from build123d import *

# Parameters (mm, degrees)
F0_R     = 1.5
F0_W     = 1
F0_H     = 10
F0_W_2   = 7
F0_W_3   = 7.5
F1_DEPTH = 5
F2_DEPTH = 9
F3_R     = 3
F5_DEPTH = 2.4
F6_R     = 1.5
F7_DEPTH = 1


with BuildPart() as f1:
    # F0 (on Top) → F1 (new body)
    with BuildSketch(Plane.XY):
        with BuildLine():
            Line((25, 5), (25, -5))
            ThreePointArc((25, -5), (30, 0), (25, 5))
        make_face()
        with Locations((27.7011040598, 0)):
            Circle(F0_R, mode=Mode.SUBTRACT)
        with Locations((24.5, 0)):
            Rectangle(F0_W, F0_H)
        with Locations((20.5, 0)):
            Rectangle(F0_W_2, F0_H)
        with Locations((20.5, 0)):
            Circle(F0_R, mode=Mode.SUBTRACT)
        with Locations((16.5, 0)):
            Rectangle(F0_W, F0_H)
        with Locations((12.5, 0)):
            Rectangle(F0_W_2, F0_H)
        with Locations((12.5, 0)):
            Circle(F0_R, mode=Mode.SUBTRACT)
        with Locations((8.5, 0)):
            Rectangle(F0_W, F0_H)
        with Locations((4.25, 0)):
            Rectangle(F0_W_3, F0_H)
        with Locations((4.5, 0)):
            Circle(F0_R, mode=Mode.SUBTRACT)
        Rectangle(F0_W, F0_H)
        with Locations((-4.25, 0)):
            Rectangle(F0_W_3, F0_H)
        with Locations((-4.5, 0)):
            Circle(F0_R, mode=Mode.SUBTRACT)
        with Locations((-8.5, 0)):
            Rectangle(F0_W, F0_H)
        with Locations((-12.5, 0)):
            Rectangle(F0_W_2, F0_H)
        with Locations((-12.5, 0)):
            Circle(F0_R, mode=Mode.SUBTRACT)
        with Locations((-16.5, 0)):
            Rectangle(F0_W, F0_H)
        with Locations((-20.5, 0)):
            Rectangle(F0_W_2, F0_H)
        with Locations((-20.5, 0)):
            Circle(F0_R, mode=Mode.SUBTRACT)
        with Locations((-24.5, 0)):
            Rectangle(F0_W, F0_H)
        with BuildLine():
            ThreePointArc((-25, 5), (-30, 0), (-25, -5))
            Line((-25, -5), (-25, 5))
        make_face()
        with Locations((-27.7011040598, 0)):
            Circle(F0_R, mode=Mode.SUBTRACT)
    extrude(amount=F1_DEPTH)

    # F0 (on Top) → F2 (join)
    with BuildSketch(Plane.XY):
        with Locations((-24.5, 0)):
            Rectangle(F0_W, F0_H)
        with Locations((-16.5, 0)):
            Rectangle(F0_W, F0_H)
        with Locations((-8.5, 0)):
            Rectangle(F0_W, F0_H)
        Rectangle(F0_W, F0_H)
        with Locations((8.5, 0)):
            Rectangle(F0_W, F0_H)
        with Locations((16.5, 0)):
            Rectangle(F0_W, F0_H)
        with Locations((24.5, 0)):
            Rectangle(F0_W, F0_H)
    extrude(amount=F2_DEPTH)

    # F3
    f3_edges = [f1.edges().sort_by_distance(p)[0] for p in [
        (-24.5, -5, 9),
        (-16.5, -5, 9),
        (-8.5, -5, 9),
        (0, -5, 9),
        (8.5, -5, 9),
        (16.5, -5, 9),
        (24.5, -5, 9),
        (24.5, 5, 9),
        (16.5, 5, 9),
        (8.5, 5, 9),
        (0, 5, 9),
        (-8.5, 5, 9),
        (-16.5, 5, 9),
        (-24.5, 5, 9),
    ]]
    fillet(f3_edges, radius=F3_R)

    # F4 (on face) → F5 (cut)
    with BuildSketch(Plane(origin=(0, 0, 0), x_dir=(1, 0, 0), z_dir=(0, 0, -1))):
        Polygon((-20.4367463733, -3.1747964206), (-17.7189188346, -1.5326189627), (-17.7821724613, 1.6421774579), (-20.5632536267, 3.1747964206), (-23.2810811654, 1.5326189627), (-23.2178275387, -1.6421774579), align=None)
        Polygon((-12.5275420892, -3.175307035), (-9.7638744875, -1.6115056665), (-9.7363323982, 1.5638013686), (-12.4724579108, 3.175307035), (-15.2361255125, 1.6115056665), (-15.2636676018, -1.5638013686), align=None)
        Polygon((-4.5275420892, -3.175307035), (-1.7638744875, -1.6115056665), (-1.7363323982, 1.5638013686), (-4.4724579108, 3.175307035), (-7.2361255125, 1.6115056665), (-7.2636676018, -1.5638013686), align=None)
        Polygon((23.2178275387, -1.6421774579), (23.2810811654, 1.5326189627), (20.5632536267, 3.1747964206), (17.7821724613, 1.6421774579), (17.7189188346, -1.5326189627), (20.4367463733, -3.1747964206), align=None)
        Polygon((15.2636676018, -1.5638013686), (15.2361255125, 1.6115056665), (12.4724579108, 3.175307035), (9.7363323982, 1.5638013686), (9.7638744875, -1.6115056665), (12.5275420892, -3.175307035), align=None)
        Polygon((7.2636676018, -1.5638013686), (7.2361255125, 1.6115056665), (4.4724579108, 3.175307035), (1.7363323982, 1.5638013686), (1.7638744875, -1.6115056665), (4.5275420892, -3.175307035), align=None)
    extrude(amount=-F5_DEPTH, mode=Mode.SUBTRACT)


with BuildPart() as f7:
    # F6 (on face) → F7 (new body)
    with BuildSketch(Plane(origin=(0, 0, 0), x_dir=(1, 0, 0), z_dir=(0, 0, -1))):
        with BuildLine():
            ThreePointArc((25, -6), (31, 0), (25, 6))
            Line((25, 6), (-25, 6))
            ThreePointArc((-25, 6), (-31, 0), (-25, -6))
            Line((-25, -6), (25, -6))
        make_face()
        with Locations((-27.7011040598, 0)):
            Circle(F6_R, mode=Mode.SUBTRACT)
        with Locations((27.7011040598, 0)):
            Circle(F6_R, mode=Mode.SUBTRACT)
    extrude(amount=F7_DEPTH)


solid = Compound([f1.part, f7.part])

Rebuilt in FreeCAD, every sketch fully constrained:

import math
import FreeCAD as App
import Part
import Sketcher

V = App.Vector
Q = App.Units.Quantity


def edges_at(feature, points):
    """Names of the edges that pass closest to the given points."""
    edges = feature.Shape.Edges
    near = lambda p: min(range(len(edges)), key=lambda i: edges[i].distToShape(Part.Vertex(*p))[0])
    return sorted({f"Edge{near(p) + 1}" for p in points})


def add_polygon(sketch, points):
    """Adds a closed chain of lines whose ends are joined by coincident constraints."""
    first, n = sketch.GeometryCount, len(points)
    for a, b in zip(points, points[1:] + points[:1]):
        sketch.addGeometry(Part.LineSegment(App.Vector(*a, 0), App.Vector(*b, 0)), False)
    for i in range(n):
        sketch.addConstraint(Sketcher.Constraint("Coincident", first + i, 2, first + (i + 1) % n, 1))

doc = App.newDocument("Part")
body = doc.addObject("PartDesign::Body", "Body")

# Sketch on XY plane
sketch1 = body.newObject("Sketcher::SketchObject", "Sketch")
sketch1.AttachmentSupport = (doc.getObject("XY_Plane"), [""])
sketch1.MapMode = "FlatFace"
sketch1.addGeometry(Part.ArcOfCircle(Part.Circle(V(25, 0, 0), V(0, 0, 1), 5), math.radians(-90), math.radians(90)), False)
sketch1.addGeometry(Part.LineSegment(V(25, 5, 0), V(-25, 5, 0)), False)
sketch1.addGeometry(Part.ArcOfCircle(Part.Circle(V(-25, 0, 0), V(0, 0, 1), 5), math.radians(90), math.radians(270)), False)
sketch1.addGeometry(Part.LineSegment(V(-25, -5, 0), V(25, -5, 0)), False)
sketch1.addGeometry(Part.Circle(V(-27.7, 0, 0), V(0, 0, 1), 1.5), False)
sketch1.addGeometry(Part.Circle(V(-20.5, 0, 0), V(0, 0, 1), 1.5), False)
sketch1.addGeometry(Part.Circle(V(-12.5, 0, 0), V(0, 0, 1), 1.5), False)
sketch1.addGeometry(Part.Circle(V(-4.5, 0, 0), V(0, 0, 1), 1.5), False)
sketch1.addGeometry(Part.Circle(V(4.5, 0, 0), V(0, 0, 1), 1.5), False)
sketch1.addGeometry(Part.Circle(V(12.5, 0, 0), V(0, 0, 1), 1.5), False)
sketch1.addGeometry(Part.Circle(V(20.5, 0, 0), V(0, 0, 1), 1.5), False)
sketch1.addGeometry(Part.Circle(V(27.7, 0, 0), V(0, 0, 1), 1.5), False)
sketch1.addConstraint(Sketcher.Constraint("Tangent", 0, 2, 1, 1))
sketch1.addConstraint(Sketcher.Constraint("Tangent", 1, 2, 2, 1))
sketch1.addConstraint(Sketcher.Constraint("Tangent", 2, 2, 3, 1))
sketch1.addConstraint(Sketcher.Constraint("Tangent", 3, 2, 0, 1))
sketch1.addConstraint(Sketcher.Constraint("Horizontal", 1))
sketch1.addConstraint(Sketcher.Constraint("Horizontal", 3))
sketch1.addConstraint(Sketcher.Constraint("Equal", 4, 5))
sketch1.addConstraint(Sketcher.Constraint("Equal", 5, 6))
sketch1.addConstraint(Sketcher.Constraint("Equal", 6, 7))
sketch1.addConstraint(Sketcher.Constraint("Equal", 7, 8))
sketch1.addConstraint(Sketcher.Constraint("Equal", 8, 9))
sketch1.addConstraint(Sketcher.Constraint("Equal", 9, 10))
sketch1.addConstraint(Sketcher.Constraint("Equal", 10, 11))
sketch1.addConstraint(Sketcher.Constraint("Symmetric", 0, 3, 2, 3, -1, 1))
sketch1.addConstraint(Sketcher.Constraint("Symmetric", 7, 3, 8, 3, -1, 1))
sketch1.addConstraint(Sketcher.Constraint("Symmetric", 6, 3, 9, 3, -1, 1))
sketch1.addConstraint(Sketcher.Constraint("Symmetric", 5, 3, 10, 3, -1, 1))
sketch1.addConstraint(Sketcher.Constraint("Symmetric", 4, 3, 11, 3, -1, 1))
sketch1.addConstraint(Sketcher.Constraint("PointOnObject", 4, 3, -1))
sketch1.addConstraint(Sketcher.Constraint("PointOnObject", 5, 3, -1))
sketch1.addConstraint(Sketcher.Constraint("PointOnObject", 6, 3, -1))
sketch1.addConstraint(Sketcher.Constraint("PointOnObject", 7, 3, -1))
sketch1.addConstraint(Sketcher.Constraint("Diameter", 4, Q("3 mm")))
sketch1.addConstraint(Sketcher.Constraint("Radius", 0, Q("5 mm")))
sketch1.addConstraint(Sketcher.Constraint("DistanceX", 1, 2, 1, 1, Q("50 mm")))
sketch1.addConstraint(Sketcher.Constraint("DistanceX", 5, 3, 6, 3, Q("8 mm")))
sketch1.addConstraint(Sketcher.Constraint("DistanceX", 6, 3, 7, 3, Q("8 mm")))
sketch1.addConstraint(Sketcher.Constraint("DistanceX", 7, 3, 8, 3, Q("9 mm")))
sketch1.addConstraint(Sketcher.Constraint("DistanceX", 4, 3, -1, 1, Q("27.701104 mm")))
pad1 = body.newObject("PartDesign::Pad", "Pad")
pad1.Profile = sketch1
pad1.Length = 5

# Sketch on XY plane
sketch2 = body.newObject("Sketcher::SketchObject", "Sketch001")
sketch2.AttachmentSupport = (doc.getObject("XY_Plane"), [""])
sketch2.MapMode = "FlatFace"
add_polygon(sketch2, [(-25, 5), (-25, -5), (-24, -5), (-24, 5)])  # lines 0-3
add_polygon(sketch2, [(-17, 5), (-17, -5), (-16, -5), (-16, 5)])  # lines 4-7
add_polygon(sketch2, [(-9, 5), (-9, -5), (-8, -5), (-8, 5)])  # lines 8-11
add_polygon(sketch2, [(-0.5, 5), (-0.5, -5), (0.5, -5), (0.5, 5)])  # lines 12-15
add_polygon(sketch2, [(8, 5), (8, -5), (9, -5), (9, 5)])  # lines 16-19
add_polygon(sketch2, [(16, 5), (16, -5), (17, -5), (17, 5)])  # lines 20-23
add_polygon(sketch2, [(24, 5), (24, -5), (25, -5), (25, 5)])  # lines 24-27
sketch2.addConstraint(Sketcher.Constraint("Vertical", 0))
sketch2.addConstraint(Sketcher.Constraint("Horizontal", 1))
sketch2.addConstraint(Sketcher.Constraint("Vertical", 2))
sketch2.addConstraint(Sketcher.Constraint("Horizontal", 3))
sketch2.addConstraint(Sketcher.Constraint("Vertical", 4))
sketch2.addConstraint(Sketcher.Constraint("Horizontal", 5))
sketch2.addConstraint(Sketcher.Constraint("Vertical", 6))
sketch2.addConstraint(Sketcher.Constraint("Horizontal", 7))
sketch2.addConstraint(Sketcher.Constraint("Vertical", 8))
sketch2.addConstraint(Sketcher.Constraint("Horizontal", 9))
sketch2.addConstraint(Sketcher.Constraint("Vertical", 10))
sketch2.addConstraint(Sketcher.Constraint("Horizontal", 11))
sketch2.addConstraint(Sketcher.Constraint("Vertical", 12))
sketch2.addConstraint(Sketcher.Constraint("Horizontal", 13))
sketch2.addConstraint(Sketcher.Constraint("Vertical", 14))
sketch2.addConstraint(Sketcher.Constraint("Horizontal", 15))
sketch2.addConstraint(Sketcher.Constraint("Vertical", 16))
sketch2.addConstraint(Sketcher.Constraint("Horizontal", 17))
sketch2.addConstraint(Sketcher.Constraint("Vertical", 18))
sketch2.addConstraint(Sketcher.Constraint("Horizontal", 19))
sketch2.addConstraint(Sketcher.Constraint("Vertical", 20))
sketch2.addConstraint(Sketcher.Constraint("Horizontal", 21))
sketch2.addConstraint(Sketcher.Constraint("Vertical", 22))
sketch2.addConstraint(Sketcher.Constraint("Horizontal", 23))
sketch2.addConstraint(Sketcher.Constraint("Vertical", 24))
sketch2.addConstraint(Sketcher.Constraint("Horizontal", 25))
sketch2.addConstraint(Sketcher.Constraint("Vertical", 26))
sketch2.addConstraint(Sketcher.Constraint("Horizontal", 27))
sketch2.addConstraint(Sketcher.Constraint("Symmetric", 12, 2, 14, 2, -1, 1))
sketch2.addConstraint(Sketcher.Constraint("Symmetric", 10, 2, 16, 2, -1, 1))
sketch2.addConstraint(Sketcher.Constraint("Symmetric", 8, 2, 18, 2, -1, 1))
sketch2.addConstraint(Sketcher.Constraint("Symmetric", 6, 2, 20, 2, -1, 1))
sketch2.addConstraint(Sketcher.Constraint("Symmetric", 4, 2, 22, 2, -1, 1))
sketch2.addConstraint(Sketcher.Constraint("Symmetric", 2, 2, 24, 2, -1, 1))
sketch2.addConstraint(Sketcher.Constraint("Symmetric", 0, 2, 26, 2, -1, 1))
sketch2.addConstraint(Sketcher.Constraint("Horizontal", 1, 2, 4, 2))
sketch2.addConstraint(Sketcher.Constraint("Horizontal", 3, 2, 6, 2))
sketch2.addConstraint(Sketcher.Constraint("Horizontal", 5, 2, 8, 2))
sketch2.addConstraint(Sketcher.Constraint("Horizontal", 7, 2, 10, 2))
sketch2.addConstraint(Sketcher.Constraint("Horizontal", 9, 2, 12, 2))
sketch2.addConstraint(Sketcher.Constraint("Horizontal", 11, 2, 14, 2))
sketch2.addConstraint(Sketcher.Constraint("Equal", 3, 5))
sketch2.addConstraint(Sketcher.Constraint("Equal", 7, 9))
sketch2.addConstraint(Sketcher.Constraint("Equal", 11, 13))
sketch2.addConstraint(Sketcher.Constraint("DistanceX", 1, 1, 1, 2, Q("1 mm")))
sketch2.addConstraint(Sketcher.Constraint("DistanceY", 0, 2, 0, 1, Q("10 mm")))
sketch2.addConstraint(Sketcher.Constraint("DistanceX", 0, 2, -1, 1, Q("25 mm")))
sketch2.addConstraint(Sketcher.Constraint("DistanceX", 4, 2, -1, 1, Q("17 mm")))
sketch2.addConstraint(Sketcher.Constraint("DistanceX", 8, 2, -1, 1, Q("9 mm")))
pad2 = body.newObject("PartDesign::Pad", "Pad001")
pad2.Profile = sketch2
pad2.Length = 9
doc.recompute()

fillet = body.newObject("PartDesign::Fillet", "Fillet")
fillet.Base = (pad2, edges_at(pad2, [
    (-24.5, -5, 9),
    (-16.5, -5, 9),
    (-8.5, -5, 9),
    (0, -5, 9),
    (8.5, -5, 9),
    (16.5, -5, 9),
    (24.5, -5, 9),
    (24.5, 5, 9),
    (16.5, 5, 9),
    (8.5, 5, 9),
    (0, 5, 9),
    (-8.5, 5, 9),
    (-16.5, 5, 9),
    (-24.5, 5, 9),
]))
fillet.Radius = 3

# Sketch on XY plane
sketch3 = body.newObject("Sketcher::SketchObject", "Sketch002")
sketch3.AttachmentSupport = (doc.getObject("XY_Plane"), [""])
sketch3.MapMode = "FlatFace"
add_polygon(sketch3, [(-20.4, 3.2), (-17.7, 1.5), (-17.8, -1.6), (-20.6, -3.2), (-23.3, -1.5), (-23.2, 1.6)])  # lines 0-5
add_polygon(sketch3, [(-12.5, 3.2), (-9.8, 1.6), (-9.7, -1.6), (-12.5, -3.2), (-15.2, -1.6), (-15.3, 1.6)])  # lines 6-11
add_polygon(sketch3, [(-4.5, 3.2), (-1.8, 1.6), (-1.7, -1.6), (-4.5, -3.2), (-7.2, -1.6), (-7.3, 1.6)])  # lines 12-17
add_polygon(sketch3, [(23.2, 1.6), (23.3, -1.5), (20.6, -3.2), (17.8, -1.6), (17.7, 1.5), (20.4, 3.2)])  # lines 18-23
add_polygon(sketch3, [(15.3, 1.6), (15.2, -1.6), (12.5, -3.2), (9.7, -1.6), (9.8, 1.6), (12.5, 3.2)])  # lines 24-29
add_polygon(sketch3, [(7.3, 1.6), (7.2, -1.6), (4.5, -3.2), (1.7, -1.6), (1.8, 1.6), (4.5, 3.2)])  # lines 30-35
sketch3.addConstraint(Sketcher.Constraint("Symmetric", 3, 2, 18, 2, -2))
sketch3.addConstraint(Sketcher.Constraint("Symmetric", 2, 2, 19, 2, -2))
sketch3.addConstraint(Sketcher.Constraint("Symmetric", 1, 2, 20, 2, -2))
sketch3.addConstraint(Sketcher.Constraint("Symmetric", 0, 2, 21, 2, -2))
sketch3.addConstraint(Sketcher.Constraint("Symmetric", 5, 2, 22, 2, -2))
sketch3.addConstraint(Sketcher.Constraint("Symmetric", 4, 2, 23, 2, -2))
sketch3.addConstraint(Sketcher.Constraint("Symmetric", 9, 2, 24, 2, -2))
sketch3.addConstraint(Sketcher.Constraint("Symmetric", 8, 2, 25, 2, -2))
sketch3.addConstraint(Sketcher.Constraint("Symmetric", 7, 2, 26, 2, -2))
sketch3.addConstraint(Sketcher.Constraint("Symmetric", 6, 2, 27, 2, -2))
sketch3.addConstraint(Sketcher.Constraint("Symmetric", 11, 2, 28, 2, -2))
sketch3.addConstraint(Sketcher.Constraint("Symmetric", 10, 2, 29, 2, -2))
sketch3.addConstraint(Sketcher.Constraint("Symmetric", 15, 2, 30, 2, -2))
sketch3.addConstraint(Sketcher.Constraint("Symmetric", 14, 2, 31, 2, -2))
sketch3.addConstraint(Sketcher.Constraint("Symmetric", 13, 2, 32, 2, -2))
sketch3.addConstraint(Sketcher.Constraint("Symmetric", 12, 2, 33, 2, -2))
sketch3.addConstraint(Sketcher.Constraint("Symmetric", 17, 2, 34, 2, -2))
sketch3.addConstraint(Sketcher.Constraint("Symmetric", 16, 2, 35, 2, -2))
sketch3.addConstraint(Sketcher.Constraint("Parallel", 0, 3))
sketch3.addConstraint(Sketcher.Constraint("Parallel", 1, 4))
sketch3.addConstraint(Sketcher.Constraint("Parallel", 2, 5))
sketch3.addConstraint(Sketcher.Constraint("Parallel", 6, 9))
sketch3.addConstraint(Sketcher.Constraint("Parallel", 7, 10))
sketch3.addConstraint(Sketcher.Constraint("Parallel", 8, 11))
sketch3.addConstraint(Sketcher.Constraint("Parallel", 9, 12))
sketch3.addConstraint(Sketcher.Constraint("Parallel", 10, 13))
sketch3.addConstraint(Sketcher.Constraint("Parallel", 11, 14))
sketch3.addConstraint(Sketcher.Constraint("Parallel", 12, 15))
sketch3.addConstraint(Sketcher.Constraint("Parallel", 13, 16))
sketch3.addConstraint(Sketcher.Constraint("Parallel", 14, 17))
sketch3.addConstraint(Sketcher.Constraint("Horizontal", 6, 2, 12, 2))
sketch3.addConstraint(Sketcher.Constraint("Horizontal", 7, 2, 13, 2))
sketch3.addConstraint(Sketcher.Constraint("Horizontal", 8, 2, 14, 2))
sketch3.addConstraint(Sketcher.Constraint("Horizontal", 9, 2, 15, 2))
sketch3.addConstraint(Sketcher.Constraint("Horizontal", 10, 2, 16, 2))
sketch3.addConstraint(Sketcher.Constraint("Equal", 0, 1))
sketch3.addConstraint(Sketcher.Constraint("Equal", 1, 2))
sketch3.addConstraint(Sketcher.Constraint("Equal", 2, 3))
sketch3.addConstraint(Sketcher.Constraint("Equal", 5, 6))
sketch3.addConstraint(Sketcher.Constraint("Equal", 6, 7))
sketch3.addConstraint(Sketcher.Constraint("Equal", 7, 8))
sketch3.addConstraint(Sketcher.Constraint("Equal", 8, 9))
sketch3.addConstraint(Sketcher.Constraint("DistanceX", 6, 2, 12, 2, Q("8 mm")))
sketch3.addConstraint(Sketcher.Constraint("DistanceY", 7, 2, -1, 1, Q("1.563801 mm")))
sketch3.addConstraint(Sketcher.Constraint("DistanceY", -1, 1, 10, 2, Q("1.563801 mm")))
sketch3.addConstraint(Sketcher.Constraint("DistanceY", 8, 2, 9, 2, Q("1.563801 mm")))
sketch3.addConstraint(Sketcher.Constraint("DistanceX", 0, 2, -1, 1, Q("17.718919 mm")))
sketch3.addConstraint(Sketcher.Constraint("DistanceY", -1, 1, 0, 2, Q("1.532619 mm")))
sketch3.addConstraint(Sketcher.Constraint("DistanceX", 3, 2, -1, 1, Q("23.281081 mm")))
sketch3.addConstraint(Sketcher.Constraint("DistanceY", 3, 2, -1, 1, Q("1.532619 mm")))
sketch3.addConstraint(Sketcher.Constraint("DistanceX", 2, 2, 1, 2, Q("2.781081 mm")))
sketch3.addConstraint(Sketcher.Constraint("DistanceY", 2, 2, 1, 2, Q("1.532619 mm")))
sketch3.addConstraint(Sketcher.Constraint("DistanceX", 5, 2, 6, 2, Q("10.672872 mm")))
sketch3.addConstraint(Sketcher.Constraint("DistanceX", 1, 2, 7, 2, Q("8.04584 mm")))
pocket1 = body.newObject("PartDesign::Pocket", "Pocket")
pocket1.Profile = sketch3
pocket1.Length = 2.4
pocket1.Reversed = True
body2 = doc.addObject("PartDesign::Body", "Body001")

# Sketch on XY plane
sketch4 = body2.newObject("Sketcher::SketchObject", "Sketch003")
sketch4.AttachmentSupport = (doc.getObject("XY_Plane001"), [""])
sketch4.MapMode = "FlatFace"
sketch4.addGeometry(Part.ArcOfCircle(Part.Circle(V(25, 0, 0), V(0, 0, 1), 6), math.radians(-90), math.radians(90)), False)
sketch4.addGeometry(Part.LineSegment(V(25, -6, 0), V(-25, -6, 0)), False)
sketch4.addGeometry(Part.ArcOfCircle(Part.Circle(V(-25, 0, 0), V(0, 0, 1), 6), math.radians(90), math.radians(270)), False)
sketch4.addGeometry(Part.LineSegment(V(-25, 6, 0), V(25, 6, 0)), False)
sketch4.addGeometry(Part.Circle(V(-27.7, 0, 0), V(0, 0, 1), 1.5), False)
sketch4.addGeometry(Part.Circle(V(27.7, 0, 0), V(0, 0, 1), 1.5), False)
sketch4.addConstraint(Sketcher.Constraint("Tangent", 0, 1, 1, 1))
sketch4.addConstraint(Sketcher.Constraint("Tangent", 1, 2, 2, 2))
sketch4.addConstraint(Sketcher.Constraint("Tangent", 2, 1, 3, 1))
sketch4.addConstraint(Sketcher.Constraint("Tangent", 3, 2, 0, 2))
sketch4.addConstraint(Sketcher.Constraint("Horizontal", 1))
sketch4.addConstraint(Sketcher.Constraint("Horizontal", 3))
sketch4.addConstraint(Sketcher.Constraint("Equal", 4, 5))
sketch4.addConstraint(Sketcher.Constraint("Symmetric", 0, 3, 2, 3, -1, 1))
sketch4.addConstraint(Sketcher.Constraint("Symmetric", 4, 3, 5, 3, -1, 1))
sketch4.addConstraint(Sketcher.Constraint("PointOnObject", 4, 3, -1))
sketch4.addConstraint(Sketcher.Constraint("Diameter", 4, Q("3 mm")))
sketch4.addConstraint(Sketcher.Constraint("Radius", 0, Q("6 mm")))
sketch4.addConstraint(Sketcher.Constraint("DistanceX", 1, 2, 1, 1, Q("50 mm")))
sketch4.addConstraint(Sketcher.Constraint("DistanceX", 4, 3, 5, 3, Q("55.402208 mm")))
pad3 = body2.newObject("PartDesign::Pad", "Pad002")
pad3.Profile = sketch4
pad3.Length = 1
pad3.Reversed = True

doc.recompute()
